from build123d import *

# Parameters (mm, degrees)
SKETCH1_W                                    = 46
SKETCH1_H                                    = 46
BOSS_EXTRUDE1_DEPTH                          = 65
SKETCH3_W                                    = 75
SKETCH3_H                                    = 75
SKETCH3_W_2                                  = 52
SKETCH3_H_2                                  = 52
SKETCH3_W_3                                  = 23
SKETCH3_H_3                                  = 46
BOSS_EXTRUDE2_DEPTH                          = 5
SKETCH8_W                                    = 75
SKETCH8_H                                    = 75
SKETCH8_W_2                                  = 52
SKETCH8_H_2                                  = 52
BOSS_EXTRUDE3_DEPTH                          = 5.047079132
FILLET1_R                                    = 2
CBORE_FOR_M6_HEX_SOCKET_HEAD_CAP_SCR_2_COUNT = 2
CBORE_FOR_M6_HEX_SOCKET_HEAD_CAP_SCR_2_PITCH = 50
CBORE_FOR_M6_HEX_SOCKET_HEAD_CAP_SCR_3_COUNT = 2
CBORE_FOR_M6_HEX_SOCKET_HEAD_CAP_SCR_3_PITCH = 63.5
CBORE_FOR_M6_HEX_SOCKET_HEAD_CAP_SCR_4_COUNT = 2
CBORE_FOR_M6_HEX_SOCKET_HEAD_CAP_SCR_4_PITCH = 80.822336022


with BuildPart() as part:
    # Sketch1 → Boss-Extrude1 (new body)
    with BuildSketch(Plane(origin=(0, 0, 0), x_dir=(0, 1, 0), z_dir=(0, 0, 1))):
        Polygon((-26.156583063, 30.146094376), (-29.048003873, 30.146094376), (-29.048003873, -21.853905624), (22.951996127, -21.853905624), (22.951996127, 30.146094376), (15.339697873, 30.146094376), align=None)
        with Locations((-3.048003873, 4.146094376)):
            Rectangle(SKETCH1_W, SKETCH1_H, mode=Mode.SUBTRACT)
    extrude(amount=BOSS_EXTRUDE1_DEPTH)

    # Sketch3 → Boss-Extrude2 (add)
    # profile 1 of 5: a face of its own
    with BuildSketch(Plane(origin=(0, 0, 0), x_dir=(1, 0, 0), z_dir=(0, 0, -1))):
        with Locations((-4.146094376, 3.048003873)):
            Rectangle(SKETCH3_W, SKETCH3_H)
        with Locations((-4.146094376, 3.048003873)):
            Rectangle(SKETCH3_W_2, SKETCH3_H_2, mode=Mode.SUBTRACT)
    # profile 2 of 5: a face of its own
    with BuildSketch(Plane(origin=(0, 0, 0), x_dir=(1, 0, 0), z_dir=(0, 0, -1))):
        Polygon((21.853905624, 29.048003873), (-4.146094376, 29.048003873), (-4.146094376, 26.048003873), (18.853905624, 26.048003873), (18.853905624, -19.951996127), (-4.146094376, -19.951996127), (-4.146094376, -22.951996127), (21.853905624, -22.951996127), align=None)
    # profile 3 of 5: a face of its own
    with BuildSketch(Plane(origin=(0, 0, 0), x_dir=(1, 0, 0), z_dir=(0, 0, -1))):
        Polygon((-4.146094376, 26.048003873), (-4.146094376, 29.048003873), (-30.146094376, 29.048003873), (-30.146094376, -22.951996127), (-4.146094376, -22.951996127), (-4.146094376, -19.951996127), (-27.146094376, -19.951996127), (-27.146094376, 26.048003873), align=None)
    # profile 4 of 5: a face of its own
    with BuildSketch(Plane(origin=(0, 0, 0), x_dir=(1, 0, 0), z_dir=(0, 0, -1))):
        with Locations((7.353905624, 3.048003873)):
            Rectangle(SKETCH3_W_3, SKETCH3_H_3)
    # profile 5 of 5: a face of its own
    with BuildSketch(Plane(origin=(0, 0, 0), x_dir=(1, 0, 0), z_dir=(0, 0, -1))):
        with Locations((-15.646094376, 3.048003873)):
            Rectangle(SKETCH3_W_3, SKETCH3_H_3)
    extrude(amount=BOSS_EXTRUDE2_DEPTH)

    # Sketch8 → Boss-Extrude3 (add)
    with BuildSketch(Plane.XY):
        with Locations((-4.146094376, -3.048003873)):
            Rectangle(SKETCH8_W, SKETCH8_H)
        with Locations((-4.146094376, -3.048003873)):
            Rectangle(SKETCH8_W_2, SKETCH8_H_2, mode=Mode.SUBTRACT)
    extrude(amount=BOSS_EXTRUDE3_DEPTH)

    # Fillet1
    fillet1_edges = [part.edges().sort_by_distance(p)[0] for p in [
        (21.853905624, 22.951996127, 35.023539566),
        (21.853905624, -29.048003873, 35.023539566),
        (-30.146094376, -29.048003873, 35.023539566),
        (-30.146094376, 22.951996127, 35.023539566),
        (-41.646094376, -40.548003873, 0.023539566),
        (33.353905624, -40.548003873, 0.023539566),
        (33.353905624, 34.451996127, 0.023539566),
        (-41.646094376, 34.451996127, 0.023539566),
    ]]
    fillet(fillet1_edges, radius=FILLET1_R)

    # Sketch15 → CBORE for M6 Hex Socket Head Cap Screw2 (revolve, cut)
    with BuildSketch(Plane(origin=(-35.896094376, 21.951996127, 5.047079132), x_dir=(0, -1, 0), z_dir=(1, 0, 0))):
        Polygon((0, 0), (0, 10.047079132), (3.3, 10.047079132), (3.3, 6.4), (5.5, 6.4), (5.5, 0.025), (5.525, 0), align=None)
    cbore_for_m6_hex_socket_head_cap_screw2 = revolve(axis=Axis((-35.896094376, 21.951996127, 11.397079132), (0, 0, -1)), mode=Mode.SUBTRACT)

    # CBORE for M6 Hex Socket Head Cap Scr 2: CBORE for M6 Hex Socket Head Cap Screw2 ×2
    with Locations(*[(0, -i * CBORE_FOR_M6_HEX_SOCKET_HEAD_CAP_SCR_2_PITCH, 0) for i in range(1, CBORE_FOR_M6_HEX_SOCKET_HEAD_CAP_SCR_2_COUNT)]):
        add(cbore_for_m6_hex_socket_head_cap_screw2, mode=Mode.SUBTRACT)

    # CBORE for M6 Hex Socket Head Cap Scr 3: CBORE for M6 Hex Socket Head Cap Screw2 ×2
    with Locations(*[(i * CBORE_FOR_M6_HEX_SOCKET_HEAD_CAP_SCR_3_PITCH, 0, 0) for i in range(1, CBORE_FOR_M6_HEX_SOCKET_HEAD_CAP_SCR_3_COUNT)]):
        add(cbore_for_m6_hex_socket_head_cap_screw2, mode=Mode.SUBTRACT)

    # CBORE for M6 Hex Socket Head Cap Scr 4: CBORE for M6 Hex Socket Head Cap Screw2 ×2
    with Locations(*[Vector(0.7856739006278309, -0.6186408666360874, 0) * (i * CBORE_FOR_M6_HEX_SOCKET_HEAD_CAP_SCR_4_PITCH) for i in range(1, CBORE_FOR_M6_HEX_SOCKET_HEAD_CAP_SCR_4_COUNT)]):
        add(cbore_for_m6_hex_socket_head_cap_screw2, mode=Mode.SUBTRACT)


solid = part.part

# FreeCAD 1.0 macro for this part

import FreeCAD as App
import Part
import Sketcher
Q = App.Units.Quantity


def edges_at(feature, points):
    """Names of the edges that pass closest to the given points."""
    edges = feature.Shape.Edges
    near = lambda p: min(range(len(edges)), key=lambda i: edges[i].distToShape(Part.Vertex(*p))[0])
    return sorted({f"Edge{near(p) + 1}" for p in points})


def add_polygon(sketch, points):
    """Adds a closed chain of lines whose ends are joined by coincident constraints."""
    first, n = sketch.GeometryCount, len(points)
    for a, b in zip(points, points[1:] + points[:1]):
        sketch.addGeometry(Part.LineSegment(App.Vector(*a, 0), App.Vector(*b, 0)), False)
    for i in range(n):
        sketch.addConstraint(Sketcher.Constraint("Coincident", first + i, 2, first + (i + 1) % n, 1))

doc = App.newDocument("Part")
body = doc.addObject("PartDesign::Body", "Body")

# Sketch on XY plane
sketch1 = body.newObject("Sketcher::SketchObject", "Sketch")
sketch1.AttachmentSupport = (doc.getObject("XY_Plane"), [""])
sketch1.MapMode = "FlatFace"
add_polygon(sketch1, [(-30, -29), (22, -29), (22, 23), (-30, 23)])  # lines 0-3
add_polygon(sketch1, [(19, 20), (19, -26), (-27, -26), (-27, 20)])  # lines 4-7
sketch1.addConstraint(Sketcher.Constraint("Horizontal", 0))
sketch1.addConstraint(Sketcher.Constraint("Vertical", 1))
sketch1.addConstraint(Sketcher.Constraint("Horizontal", 2))
sketch1.addConstraint(Sketcher.Constraint("Vertical", 3))
sketch1.addConstraint(Sketcher.Constraint("Vertical", 4))
sketch1.addConstraint(Sketcher.Constraint("Horizontal", 5))
sketch1.addConstraint(Sketcher.Constraint("Vertical", 6))
sketch1.addConstraint(Sketcher.Constraint("Horizontal", 7))
sketch1.addConstraint(Sketcher.Constraint("Equal", 2, 1))
sketch1.addConstraint(Sketcher.Constraint("Equal", 7, 4))
sketch1.addConstraint(Sketcher.Constraint("DistanceX", 0, 1, 0, 2, 52.0))
sketch1.addConstraint(Sketcher.Constraint("DistanceX", 5, 2, 5, 1, 46.0))
sketch1.addConstraint(Sketcher.Constraint("DistanceX", 4, 2, 0, 2, 3.0))
sketch1.addConstraint(Sketcher.Constraint("DistanceY", 0, 2, 4, 2, 3.0))
sketch1.addConstraint(Sketcher.Constraint("DistanceX", -1, 1, 0, 2, 21.853906))
sketch1.addConstraint(Sketcher.Constraint("DistanceY", 0, 2, -1, 1, 29.048004))
pad1 = body.newObject("PartDesign::Pad", "Pad")
pad1.Profile = sketch1
pad1.Length = 65

# Sketch on XY plane
sketch2 = body.newObject("Sketcher::SketchObject", "Sketch001")
sketch2.AttachmentSupport = (doc.getObject("XY_Plane"), [""])
sketch2.MapMode = "FlatFace"
add_polygon(sketch2, [(-42, -41), (-42, 34), (33, 34), (33, -41)])  # lines 0-3
sketch2.addConstraint(Sketcher.Constraint("Vertical", 0))
sketch2.addConstraint(Sketcher.Constraint("Horizontal", 1))
sketch2.addConstraint(Sketcher.Constraint("Vertical", 2))
sketch2.addConstraint(Sketcher.Constraint("Horizontal", 3))
sketch2.addConstraint(Sketcher.Constraint("Equal", 3, 0))
sketch2.addConstraint(Sketcher.Constraint("DistanceX", 1, 1, 1, 2, 75.0))
sketch2.addConstraint(Sketcher.Constraint("DistanceX", 0, 2, -1, 1, 41.646094))
sketch2.addConstraint(Sketcher.Constraint("DistanceY", -1, 1, 0, 2, 34.451996))
pad2 = body.newObject("PartDesign::Pad", "Pad001")
pad2.Profile = sketch2
pad2.Length = 5
pad2.Reversed = True

# Sketch on XY plane
sketch3 = body.newObject("Sketcher::SketchObject", "Sketch002")
sketch3.AttachmentSupport = (doc.getObject("XY_Plane"), [""])
sketch3.MapMode = "FlatFace"
add_polygon(sketch3, [(-42, 34), (-42, -41), (33, -41), (33, 34)])  # lines 0-3
add_polygon(sketch3, [(22, -29), (-30, -29), (-30, 23), (22, 23)])  # lines 4-7
sketch3.addConstraint(Sketcher.Constraint("Vertical", 0))
sketch3.addConstraint(Sketcher.Constraint("Horizontal", 1))
sketch3.addConstraint(Sketcher.Constraint("Vertical", 2))
sketch3.addConstraint(Sketcher.Constraint("Horizontal", 3))
sketch3.addConstraint(Sketcher.Constraint("Horizontal", 4))
sketch3.addConstraint(Sketcher.Constraint("Vertical", 5))
sketch3.addConstraint(Sketcher.Constraint("Horizontal", 6))
sketch3.addConstraint(Sketcher.Constraint("Vertical", 7))
sketch3.addConstraint(Sketcher.Constraint("Equal", 3, 0))
sketch3.addConstraint(Sketcher.Constraint("Equal", 6, 5))
sketch3.addConstraint(Sketcher.Constraint("DistanceX", 1, 1, 1, 2, 75.0))
sketch3.addConstraint(Sketcher.Constraint("DistanceX", 4, 2, 4, 1, 52.0))
sketch3.addConstraint(Sketcher.Constraint("DistanceX", 0, 2, 4, 2, 11.5))
sketch3.addConstraint(Sketcher.Constraint("DistanceY", 0, 2, 4, 2, 11.5))
sketch3.addConstraint(Sketcher.Constraint("DistanceX", 0, 2, -1, 1, 41.646094))
sketch3.addConstraint(Sketcher.Constraint("DistanceY", 0, 2, -1, 1, 40.548004))
pad3 = body.newObject("PartDesign::Pad", "Pad002")
pad3.Profile = sketch3
pad3.Length = 5.047079
doc.recompute()

fillet = body.newObject("PartDesign::Fillet", "Fillet")
fillet.Base = (pad3, edges_at(pad3, [
    (21.854, 22.952, 35.024),
    (21.854, -29.048, 35.024),
    (-30.146, -29.048, 35.024),
    (-30.146, 22.952, 35.024),
    (-41.646, -40.548, 0.024),
    (33.354, -40.548, 0.024),
    (33.354, 34.452, 0.024),
    (-41.646, 34.452, 0.024),
]))
fillet.Radius = 2

# Sketch on YZ plane
sketch4 = body.newObject("Sketcher::SketchObject", "Sketch003")
sketch4.AttachmentSupport = (doc.getObject("YZ_Plane"), [""])
sketch4.MapMode = "FlatFace"
sketch4.AttachmentOffset = App.Placement(App.Vector(0, 0, -35.896094), App.Rotation())
add_polygon(sketch4, [(21.952, -5), (21.952, 5.047), (16.427, 5.047), (16.452, 5.022), (16.452, -1.353), (18.652, -1.353), (18.652, -5)])  # lines 0-6
sketch4.addGeometry(Part.LineSegment(App.Vector(21.952, 5.047, 0), App.Vector(21.952, -5, 0)), True)  # axis
sketch4.addConstraint(Sketcher.Constraint("Vertical", 0))
sketch4.addConstraint(Sketcher.Constraint("Horizontal", 1))
sketch4.addConstraint(Sketcher.Constraint("Vertical", 3))
sketch4.addConstraint(Sketcher.Constraint("Horizontal", 4))
sketch4.addConstraint(Sketcher.Constraint("Vertical", 5))
sketch4.addConstraint(Sketcher.Constraint("Horizontal", 6))
sketch4.addConstraint(Sketcher.Constraint("Vertical", 7))
sketch4.addConstraint(Sketcher.Constraint("Coincident", 7, 1, 0, 2))
sketch4.addConstraint(Sketcher.Constraint("Horizontal", 5, 2, 7, 2))
sketch4.addConstraint(Sketcher.Constraint("Angle", 2, Q("-45 deg")))
sketch4.addConstraint(Sketcher.Constraint("DistanceX", 4, 1, 4, 2, 2.2))
sketch4.addConstraint(Sketcher.Constraint("DistanceX", 6, 1, 6, 2, 3.3))
sketch4.addConstraint(Sketcher.Constraint("DistanceY", 5, 2, -1, 1, 5.0))
sketch4.addConstraint(Sketcher.Constraint("DistanceY", 3, 2, 1, 2, 6.4))
sketch4.addConstraint(Sketcher.Constraint("DistanceX", 1, 2, 1, 1, 5.525))
sketch4.addConstraint(Sketcher.Constraint("DistanceY", 0, 1, 0, 2, 10.047079))
sketch4.addConstraint(Sketcher.Constraint("DistanceX", -1, 1, 0, 2, 21.951996))
groove = body.newObject("PartDesign::Groove", "Groove")
groove.Profile = sketch4
groove.ReferenceAxis = (sketch4, ["Axis0"])
groove.Angle = 360
doc.recompute()

linearpattern = body.newObject("PartDesign::LinearPattern", "LinearPattern")
linearpattern.Originals = [groove]
linearpattern.Direction = (doc.getObject("Y_Axis"), [""])
linearpattern.Mode = "offset"
linearpattern.Offset = 50
linearpattern.Occurrences = 2
linearpattern.Reversed = True
body.Tip = linearpattern
doc.recompute()

linearpattern2 = body.newObject("PartDesign::LinearPattern", "LinearPattern001")
linearpattern2.Originals = [groove]
linearpattern2.Direction = (doc.getObject("X_Axis"), [""])
linearpattern2.Mode = "offset"
linearpattern2.Offset = 63.5
linearpattern2.Occurrences = 2
body.Tip = linearpattern2
doc.recompute()

datumline = body.newObject("PartDesign::Line", "DatumLine")
datumline.Placement = App.Placement(App.Vector(0, 0, 0), App.Rotation(App.Vector(0, 0, 1), App.Vector(0.785673901, -0.618640867, 0)))
linearpattern3 = body.newObject("PartDesign::LinearPattern", "LinearPattern002")
linearpattern3.Originals = [groove]
linearpattern3.Direction = (datumline, [""])
linearpattern3.Mode = "offset"
linearpattern3.Offset = 80.822336
linearpattern3.Occurrences = 2
body.Tip = linearpattern3

doc.recompute()
